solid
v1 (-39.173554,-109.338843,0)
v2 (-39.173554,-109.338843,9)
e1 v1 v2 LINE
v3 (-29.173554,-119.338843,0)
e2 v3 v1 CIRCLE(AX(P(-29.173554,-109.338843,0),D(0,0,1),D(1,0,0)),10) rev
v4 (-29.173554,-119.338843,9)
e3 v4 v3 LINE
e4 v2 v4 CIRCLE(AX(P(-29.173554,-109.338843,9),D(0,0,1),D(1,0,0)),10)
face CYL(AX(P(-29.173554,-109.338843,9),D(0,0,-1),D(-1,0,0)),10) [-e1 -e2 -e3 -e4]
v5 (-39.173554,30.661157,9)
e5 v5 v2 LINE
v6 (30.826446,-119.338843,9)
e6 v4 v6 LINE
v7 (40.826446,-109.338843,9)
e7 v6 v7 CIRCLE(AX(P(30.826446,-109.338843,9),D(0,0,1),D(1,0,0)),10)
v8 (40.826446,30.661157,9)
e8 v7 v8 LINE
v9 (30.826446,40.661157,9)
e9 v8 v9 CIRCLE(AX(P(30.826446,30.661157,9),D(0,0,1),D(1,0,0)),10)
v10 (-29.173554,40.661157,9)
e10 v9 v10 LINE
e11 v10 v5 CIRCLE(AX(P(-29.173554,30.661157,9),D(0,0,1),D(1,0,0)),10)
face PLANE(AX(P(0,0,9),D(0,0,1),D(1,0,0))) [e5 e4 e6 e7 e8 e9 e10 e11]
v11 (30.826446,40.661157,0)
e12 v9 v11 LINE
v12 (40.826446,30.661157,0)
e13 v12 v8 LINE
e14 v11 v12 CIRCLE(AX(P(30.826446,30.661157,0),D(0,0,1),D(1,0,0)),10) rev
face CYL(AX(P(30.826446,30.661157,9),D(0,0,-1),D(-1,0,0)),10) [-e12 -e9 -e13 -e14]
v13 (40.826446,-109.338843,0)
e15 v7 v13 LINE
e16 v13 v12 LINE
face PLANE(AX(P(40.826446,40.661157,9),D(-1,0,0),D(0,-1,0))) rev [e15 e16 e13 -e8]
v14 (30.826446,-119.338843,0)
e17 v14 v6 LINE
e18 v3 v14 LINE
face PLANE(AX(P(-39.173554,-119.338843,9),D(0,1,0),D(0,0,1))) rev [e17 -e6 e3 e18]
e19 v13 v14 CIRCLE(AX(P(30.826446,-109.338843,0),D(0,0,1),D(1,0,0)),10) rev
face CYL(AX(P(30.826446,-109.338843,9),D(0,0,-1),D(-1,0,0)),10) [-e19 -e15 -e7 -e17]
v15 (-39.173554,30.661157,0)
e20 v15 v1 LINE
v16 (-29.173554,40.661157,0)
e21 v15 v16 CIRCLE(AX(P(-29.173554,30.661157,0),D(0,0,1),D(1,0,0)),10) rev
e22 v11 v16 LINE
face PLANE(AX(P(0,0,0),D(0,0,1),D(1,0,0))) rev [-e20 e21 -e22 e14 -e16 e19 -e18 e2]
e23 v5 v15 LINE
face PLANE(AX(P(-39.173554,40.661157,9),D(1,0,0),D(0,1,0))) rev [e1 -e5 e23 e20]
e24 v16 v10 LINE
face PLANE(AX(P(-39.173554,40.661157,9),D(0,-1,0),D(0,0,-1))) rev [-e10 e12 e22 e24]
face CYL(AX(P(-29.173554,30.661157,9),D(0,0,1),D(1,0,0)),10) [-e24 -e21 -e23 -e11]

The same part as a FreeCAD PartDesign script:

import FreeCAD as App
import Part
import Sketcher


def edges_at(feature, points):
    """Names of the edges that pass closest to the given points."""
    edges = feature.Shape.Edges
    near = lambda p: min(range(len(edges)), key=lambda i: edges[i].distToShape(Part.Vertex(*p))[0])
    return sorted({f"Edge{near(p) + 1}" for p in points})


def add_polygon(sketch, points):
    """Adds a closed chain of lines whose ends are joined by coincident constraints."""
    first, n = sketch.GeometryCount, len(points)
    for a, b in zip(points, points[1:] + points[:1]):
        sketch.addGeometry(Part.LineSegment(App.Vector(*a, 0), App.Vector(*b, 0)), False)
    for i in range(n):
        sketch.addConstraint(Sketcher.Constraint("Coincident", first + i, 2, first + (i + 1) % n, 1))

doc = App.newDocument("Part")
params = doc.addObject("Spreadsheet::Sheet", "Params")
for row, (alias, value) in enumerate([
    ("sketch1_width", "80 mm"),
    ("sketch1_height", "160 mm"),
    ("pad1_length", "9 mm"),
    ("fillet_radius", "10 mm"),
    ("fillet2_radius", "10 mm"),
    ("fillet3_radius", "10 mm"),
    ("fillet4_radius", "10 mm"),
], start=1):
    params.set(f"A{row}", alias)
    params.set(f"B{row}", "=" + value)
    params.setAlias(f"B{row}", alias)

body = doc.addObject("PartDesign::Body", "Body")

sketch1 = body.newObject("Sketcher::SketchObject", "Sketch")
sketch1.AttachmentSupport = (doc.getObject("XY_Plane"), [""])
sketch1.MapMode = "FlatFace"
add_polygon(sketch1, [(-39.173554, 40.661157), (-39.173554, -119.338843), (40.826446, -119.338843), (40.826446, 40.661157)])
sketch1.addConstraint([
    Sketcher.Constraint("Vertical", 0),
    Sketcher.Constraint("Horizontal", 1),
    Sketcher.Constraint("Vertical", 2),
    Sketcher.Constraint("Horizontal", 3),
    Sketcher.Constraint("DistanceX", 1, 1, 1, 2, 80.0),
    Sketcher.Constraint("DistanceY", 0, 2, 0, 1, 160.0),
    Sketcher.Constraint("DistanceX", 0, 2, -1, 1, 39.173554),
    Sketcher.Constraint("DistanceY", 0, 2, -1, 1, 119.338843),
])
sketch1.setExpression("Constraints[8]", "Params.sketch1_width")
sketch1.setExpression("Constraints[9]", "Params.sketch1_height")
pad1 = body.newObject("PartDesign::Pad", "Pad")
pad1.Profile = sketch1
pad1.setExpression("Length", "Params.pad1_length")
doc.recompute()

fillet = body.newObject("PartDesign::Fillet", "Fillet")
fillet.Base = (pad1, edges_at(pad1, [(-39.174, 40.661, 4.5)]))
fillet.setExpression("Radius", "Params.fillet_radius")
doc.recompute()

fillet2 = body.newObject("PartDesign::Fillet", "Fillet001")
fillet2.Base = (fillet, edges_at(fillet, [(40.826, 40.661, 4.5)]))
fillet2.setExpression("Radius", "Params.fillet2_radius")
doc.recompute()

fillet3 = body.newObject("PartDesign::Fillet", "Fillet002")
fillet3.Base = (fillet2, edges_at(fillet2, [(40.826, -119.339, 4.5)]))
fillet3.setExpression("Radius", "Params.fillet3_radius")
doc.recompute()

fillet4 = body.newObject("PartDesign::Fillet", "Fillet003")
fillet4.Base = (fillet3, edges_at(fillet3, [(-39.174, -119.339, 4.5)]))
fillet4.setExpression("Radius", "Params.fillet4_radius")

doc.recompute()
